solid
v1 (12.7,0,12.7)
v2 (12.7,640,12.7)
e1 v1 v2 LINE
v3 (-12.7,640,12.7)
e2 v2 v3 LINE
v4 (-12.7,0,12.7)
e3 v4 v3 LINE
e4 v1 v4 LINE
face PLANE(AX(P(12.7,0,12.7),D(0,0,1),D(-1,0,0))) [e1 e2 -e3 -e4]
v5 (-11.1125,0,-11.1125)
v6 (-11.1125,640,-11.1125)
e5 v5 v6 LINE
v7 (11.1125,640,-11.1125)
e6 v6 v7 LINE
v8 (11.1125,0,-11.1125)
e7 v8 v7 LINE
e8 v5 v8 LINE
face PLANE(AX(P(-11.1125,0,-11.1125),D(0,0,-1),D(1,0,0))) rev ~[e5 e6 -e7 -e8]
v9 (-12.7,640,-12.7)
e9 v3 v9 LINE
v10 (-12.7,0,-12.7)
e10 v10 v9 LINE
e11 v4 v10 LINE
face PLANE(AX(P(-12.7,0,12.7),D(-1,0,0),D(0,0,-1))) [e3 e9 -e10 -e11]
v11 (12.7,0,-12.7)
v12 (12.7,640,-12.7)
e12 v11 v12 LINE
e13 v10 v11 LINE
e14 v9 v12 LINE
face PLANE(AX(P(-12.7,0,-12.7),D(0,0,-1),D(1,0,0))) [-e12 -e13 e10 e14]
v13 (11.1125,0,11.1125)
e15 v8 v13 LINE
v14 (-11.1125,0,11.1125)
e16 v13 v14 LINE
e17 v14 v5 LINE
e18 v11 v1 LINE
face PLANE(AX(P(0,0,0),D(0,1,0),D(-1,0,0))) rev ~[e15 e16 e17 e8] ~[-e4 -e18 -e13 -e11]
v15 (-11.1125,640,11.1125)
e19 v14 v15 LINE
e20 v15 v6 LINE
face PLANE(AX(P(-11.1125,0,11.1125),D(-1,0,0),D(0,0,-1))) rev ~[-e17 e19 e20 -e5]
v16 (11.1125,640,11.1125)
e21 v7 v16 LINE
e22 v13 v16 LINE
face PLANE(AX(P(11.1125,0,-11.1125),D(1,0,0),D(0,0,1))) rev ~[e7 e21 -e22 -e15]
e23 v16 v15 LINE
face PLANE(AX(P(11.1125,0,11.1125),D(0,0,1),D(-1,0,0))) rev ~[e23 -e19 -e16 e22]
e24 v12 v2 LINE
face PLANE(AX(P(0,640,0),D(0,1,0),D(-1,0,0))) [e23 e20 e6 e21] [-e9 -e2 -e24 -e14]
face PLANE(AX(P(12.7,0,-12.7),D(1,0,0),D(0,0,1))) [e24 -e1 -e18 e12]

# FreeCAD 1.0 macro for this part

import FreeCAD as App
import Part
import Sketcher
from FreeCAD import Vector
Q = App.Units.Quantity

doc = App.newDocument("Part")
body = doc.addObject("PartDesign::Body", "Body")

sketch1 = body.newObject("Sketcher::SketchObject", "Sketch")
sketch1.AttachmentSupport = (doc.getObject("XZ_Plane"), [""])
sketch1.MapMode = "FlatFace"
sketch1.addGeometry([
    Part.LineSegment(Vector(-13, -13, 0), Vector(-13, 13, 0)),
    Part.LineSegment(Vector(-13, 13, 0), Vector(13, 13, 0)),
    Part.LineSegment(Vector(13, 13, 0), Vector(13, -13, 0)),
    Part.LineSegment(Vector(13, -13, 0), Vector(-13, -13, 0)),
    Part.LineSegment(Vector(11, 11, 0), Vector(-11, 11, 0)),
    Part.LineSegment(Vector(-11, 11, 0), Vector(-11, -11, 0)),
    Part.LineSegment(Vector(-11, -11, 0), Vector(11, -11, 0)),
    Part.LineSegment(Vector(11, -11, 0), Vector(11, 11, 0)),
], False)
sketch1.addConstraint([
    Sketcher.Constraint("Coincident", 0, 2, 1, 1),
    Sketcher.Constraint("Coincident", 1, 2, 2, 1),
    Sketcher.Constraint("Coincident", 2, 2, 3, 1),
    Sketcher.Constraint("Coincident", 3, 2, 0, 1),
    Sketcher.Constraint("Coincident", 4, 2, 5, 1),
    Sketcher.Constraint("Coincident", 5, 2, 6, 1),
    Sketcher.Constraint("Coincident", 6, 2, 7, 1),
    Sketcher.Constraint("Coincident", 7, 2, 4, 1),
    Sketcher.Constraint("Vertical", 0),
    Sketcher.Constraint("Horizontal", 1),
    Sketcher.Constraint("Vertical", 2),
    Sketcher.Constraint("Horizontal", 3),
    Sketcher.Constraint("Horizontal", 4),
    Sketcher.Constraint("Vertical", 5),
    Sketcher.Constraint("Horizontal", 6),
    Sketcher.Constraint("Vertical", 7),
    Sketcher.Constraint("Symmetric", 0, 2, 2, 2, -1, 1),
    Sketcher.Constraint("Symmetric", 4, 2, 6, 2, -1, 1),
    Sketcher.Constraint("Equal", 3, 0),
    Sketcher.Constraint("Equal", 6, 5),
    Sketcher.Constraint("DistanceX", 1, 1, 1, 2, Q("1 in")),
    Sketcher.Constraint("DistanceX", 0, 2, 4, 2, Q("0.0625 in")),
])
pad1 = body.newObject("PartDesign::Pad", "Pad")
pad1.Profile = sketch1
pad1.Length = 640
pad1.Reversed = True

doc.recompute()
